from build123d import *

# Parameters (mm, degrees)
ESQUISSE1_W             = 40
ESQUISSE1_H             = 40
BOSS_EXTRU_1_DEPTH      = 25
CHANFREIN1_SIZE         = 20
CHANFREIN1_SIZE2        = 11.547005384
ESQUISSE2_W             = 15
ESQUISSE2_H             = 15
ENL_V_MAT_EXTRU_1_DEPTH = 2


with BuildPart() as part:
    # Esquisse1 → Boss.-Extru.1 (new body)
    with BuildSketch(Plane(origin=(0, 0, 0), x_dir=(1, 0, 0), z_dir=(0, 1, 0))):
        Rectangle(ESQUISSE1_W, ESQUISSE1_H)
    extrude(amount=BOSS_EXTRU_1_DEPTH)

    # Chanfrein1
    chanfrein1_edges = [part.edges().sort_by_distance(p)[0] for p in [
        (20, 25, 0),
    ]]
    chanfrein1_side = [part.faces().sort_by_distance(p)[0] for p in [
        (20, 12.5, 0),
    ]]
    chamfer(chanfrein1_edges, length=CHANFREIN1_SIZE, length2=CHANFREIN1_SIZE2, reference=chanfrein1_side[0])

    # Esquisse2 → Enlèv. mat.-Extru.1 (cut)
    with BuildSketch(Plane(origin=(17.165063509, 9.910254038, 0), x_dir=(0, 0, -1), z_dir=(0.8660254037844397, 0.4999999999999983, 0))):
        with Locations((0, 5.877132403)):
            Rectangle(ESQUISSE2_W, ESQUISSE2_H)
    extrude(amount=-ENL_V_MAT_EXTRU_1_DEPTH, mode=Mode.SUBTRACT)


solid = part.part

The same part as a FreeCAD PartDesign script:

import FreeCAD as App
import Part
import Sketcher
from FreeCAD import Vector
Q = App.Units.Quantity


def edges_at(feature, points):
    """Names of the edges that pass closest to the given points."""
    edges = feature.Shape.Edges
    near = lambda p: min(range(len(edges)), key=lambda i: edges[i].distToShape(Part.Vertex(*p))[0])
    return sorted({f"Edge{near(p) + 1}" for p in points})


def add_polygon(sketch, points):
    """Adds a closed chain of lines whose ends are joined by coincident constraints."""
    first, n = sketch.GeometryCount, len(points)
    for a, b in zip(points, points[1:] + points[:1]):
        sketch.addGeometry(Part.LineSegment(App.Vector(*a, 0), App.Vector(*b, 0)), False)
    for i in range(n):
        sketch.addConstraint(Sketcher.Constraint("Coincident", first + i, 2, first + (i + 1) % n, 1))

doc = App.newDocument("Part")
body = doc.addObject("PartDesign::Body", "Body")

sketch1 = body.newObject("Sketcher::SketchObject", "Sketch")
sketch1.AttachmentSupport = (doc.getObject("XZ_Plane"), [""])
sketch1.MapMode = "FlatFace"
add_polygon(sketch1, [(-20, -20), (-20, 20), (20, 20), (20, -20)])
sketch1.addConstraint(Sketcher.Constraint("Vertical", 0))
sketch1.addConstraint(Sketcher.Constraint("Horizontal", 1))
sketch1.addConstraint(Sketcher.Constraint("Vertical", 2))
sketch1.addConstraint(Sketcher.Constraint("Horizontal", 3))
sketch1.addConstraint(Sketcher.Constraint("Symmetric", 0, 2, 2, 2, -1, 1))
sketch1.addConstraint(Sketcher.Constraint("Equal", 3, 0))
sketch1.addConstraint(Sketcher.Constraint("DistanceX", 1, 1, 1, 2, Q("40 mm")))
pad1 = body.newObject("PartDesign::Pad", "Pad")
pad1.Profile = sketch1
pad1.Length = 25
pad1.Reversed = True
doc.recompute()

chamfer = body.newObject("PartDesign::Chamfer", "Chamfer")
chamfer.Base = (pad1, edges_at(pad1, [(20, 25, 0)]))
chamfer.ChamferType = "Two distances"
chamfer.Size = 20
chamfer.Size2 = 11.547005

sketch2 = body.newObject("Sketcher::SketchObject", "Sketch001")
sketch2.Placement = App.Placement(Vector(17.165064, 9.910254, 0), App.Rotation(Vector(0, 0, -1), Vector(-0.5, 0.866025404, 0), Vector(0.866025404, 0.5, 0), "ZXY"))
add_polygon(sketch2, [(-7.5, 13.377132), (-7.5, -1.622868), (7.5, -1.622868), (7.5, 13.377132)])
sketch2.addConstraint(Sketcher.Constraint("Vertical", 0))
sketch2.addConstraint(Sketcher.Constraint("Horizontal", 1))
sketch2.addConstraint(Sketcher.Constraint("Vertical", 2))
sketch2.addConstraint(Sketcher.Constraint("Horizontal", 3))
sketch2.addConstraint(Sketcher.Constraint("Equal", 3, 0))
sketch2.addConstraint(Sketcher.Constraint("DistanceX", 1, 1, 1, 2, Q("15 mm")))
sketch2.addConstraint(Sketcher.Constraint("DistanceX", 0, 2, -1, 1, Q("7.5 mm")))
sketch2.addConstraint(Sketcher.Constraint("DistanceY", 0, 2, -1, 1, Q("1.622868 mm")))
pocket1 = body.newObject("PartDesign::Pocket", "Pocket")
pocket1.Profile = sketch2
pocket1.Length = 2

doc.recompute()
